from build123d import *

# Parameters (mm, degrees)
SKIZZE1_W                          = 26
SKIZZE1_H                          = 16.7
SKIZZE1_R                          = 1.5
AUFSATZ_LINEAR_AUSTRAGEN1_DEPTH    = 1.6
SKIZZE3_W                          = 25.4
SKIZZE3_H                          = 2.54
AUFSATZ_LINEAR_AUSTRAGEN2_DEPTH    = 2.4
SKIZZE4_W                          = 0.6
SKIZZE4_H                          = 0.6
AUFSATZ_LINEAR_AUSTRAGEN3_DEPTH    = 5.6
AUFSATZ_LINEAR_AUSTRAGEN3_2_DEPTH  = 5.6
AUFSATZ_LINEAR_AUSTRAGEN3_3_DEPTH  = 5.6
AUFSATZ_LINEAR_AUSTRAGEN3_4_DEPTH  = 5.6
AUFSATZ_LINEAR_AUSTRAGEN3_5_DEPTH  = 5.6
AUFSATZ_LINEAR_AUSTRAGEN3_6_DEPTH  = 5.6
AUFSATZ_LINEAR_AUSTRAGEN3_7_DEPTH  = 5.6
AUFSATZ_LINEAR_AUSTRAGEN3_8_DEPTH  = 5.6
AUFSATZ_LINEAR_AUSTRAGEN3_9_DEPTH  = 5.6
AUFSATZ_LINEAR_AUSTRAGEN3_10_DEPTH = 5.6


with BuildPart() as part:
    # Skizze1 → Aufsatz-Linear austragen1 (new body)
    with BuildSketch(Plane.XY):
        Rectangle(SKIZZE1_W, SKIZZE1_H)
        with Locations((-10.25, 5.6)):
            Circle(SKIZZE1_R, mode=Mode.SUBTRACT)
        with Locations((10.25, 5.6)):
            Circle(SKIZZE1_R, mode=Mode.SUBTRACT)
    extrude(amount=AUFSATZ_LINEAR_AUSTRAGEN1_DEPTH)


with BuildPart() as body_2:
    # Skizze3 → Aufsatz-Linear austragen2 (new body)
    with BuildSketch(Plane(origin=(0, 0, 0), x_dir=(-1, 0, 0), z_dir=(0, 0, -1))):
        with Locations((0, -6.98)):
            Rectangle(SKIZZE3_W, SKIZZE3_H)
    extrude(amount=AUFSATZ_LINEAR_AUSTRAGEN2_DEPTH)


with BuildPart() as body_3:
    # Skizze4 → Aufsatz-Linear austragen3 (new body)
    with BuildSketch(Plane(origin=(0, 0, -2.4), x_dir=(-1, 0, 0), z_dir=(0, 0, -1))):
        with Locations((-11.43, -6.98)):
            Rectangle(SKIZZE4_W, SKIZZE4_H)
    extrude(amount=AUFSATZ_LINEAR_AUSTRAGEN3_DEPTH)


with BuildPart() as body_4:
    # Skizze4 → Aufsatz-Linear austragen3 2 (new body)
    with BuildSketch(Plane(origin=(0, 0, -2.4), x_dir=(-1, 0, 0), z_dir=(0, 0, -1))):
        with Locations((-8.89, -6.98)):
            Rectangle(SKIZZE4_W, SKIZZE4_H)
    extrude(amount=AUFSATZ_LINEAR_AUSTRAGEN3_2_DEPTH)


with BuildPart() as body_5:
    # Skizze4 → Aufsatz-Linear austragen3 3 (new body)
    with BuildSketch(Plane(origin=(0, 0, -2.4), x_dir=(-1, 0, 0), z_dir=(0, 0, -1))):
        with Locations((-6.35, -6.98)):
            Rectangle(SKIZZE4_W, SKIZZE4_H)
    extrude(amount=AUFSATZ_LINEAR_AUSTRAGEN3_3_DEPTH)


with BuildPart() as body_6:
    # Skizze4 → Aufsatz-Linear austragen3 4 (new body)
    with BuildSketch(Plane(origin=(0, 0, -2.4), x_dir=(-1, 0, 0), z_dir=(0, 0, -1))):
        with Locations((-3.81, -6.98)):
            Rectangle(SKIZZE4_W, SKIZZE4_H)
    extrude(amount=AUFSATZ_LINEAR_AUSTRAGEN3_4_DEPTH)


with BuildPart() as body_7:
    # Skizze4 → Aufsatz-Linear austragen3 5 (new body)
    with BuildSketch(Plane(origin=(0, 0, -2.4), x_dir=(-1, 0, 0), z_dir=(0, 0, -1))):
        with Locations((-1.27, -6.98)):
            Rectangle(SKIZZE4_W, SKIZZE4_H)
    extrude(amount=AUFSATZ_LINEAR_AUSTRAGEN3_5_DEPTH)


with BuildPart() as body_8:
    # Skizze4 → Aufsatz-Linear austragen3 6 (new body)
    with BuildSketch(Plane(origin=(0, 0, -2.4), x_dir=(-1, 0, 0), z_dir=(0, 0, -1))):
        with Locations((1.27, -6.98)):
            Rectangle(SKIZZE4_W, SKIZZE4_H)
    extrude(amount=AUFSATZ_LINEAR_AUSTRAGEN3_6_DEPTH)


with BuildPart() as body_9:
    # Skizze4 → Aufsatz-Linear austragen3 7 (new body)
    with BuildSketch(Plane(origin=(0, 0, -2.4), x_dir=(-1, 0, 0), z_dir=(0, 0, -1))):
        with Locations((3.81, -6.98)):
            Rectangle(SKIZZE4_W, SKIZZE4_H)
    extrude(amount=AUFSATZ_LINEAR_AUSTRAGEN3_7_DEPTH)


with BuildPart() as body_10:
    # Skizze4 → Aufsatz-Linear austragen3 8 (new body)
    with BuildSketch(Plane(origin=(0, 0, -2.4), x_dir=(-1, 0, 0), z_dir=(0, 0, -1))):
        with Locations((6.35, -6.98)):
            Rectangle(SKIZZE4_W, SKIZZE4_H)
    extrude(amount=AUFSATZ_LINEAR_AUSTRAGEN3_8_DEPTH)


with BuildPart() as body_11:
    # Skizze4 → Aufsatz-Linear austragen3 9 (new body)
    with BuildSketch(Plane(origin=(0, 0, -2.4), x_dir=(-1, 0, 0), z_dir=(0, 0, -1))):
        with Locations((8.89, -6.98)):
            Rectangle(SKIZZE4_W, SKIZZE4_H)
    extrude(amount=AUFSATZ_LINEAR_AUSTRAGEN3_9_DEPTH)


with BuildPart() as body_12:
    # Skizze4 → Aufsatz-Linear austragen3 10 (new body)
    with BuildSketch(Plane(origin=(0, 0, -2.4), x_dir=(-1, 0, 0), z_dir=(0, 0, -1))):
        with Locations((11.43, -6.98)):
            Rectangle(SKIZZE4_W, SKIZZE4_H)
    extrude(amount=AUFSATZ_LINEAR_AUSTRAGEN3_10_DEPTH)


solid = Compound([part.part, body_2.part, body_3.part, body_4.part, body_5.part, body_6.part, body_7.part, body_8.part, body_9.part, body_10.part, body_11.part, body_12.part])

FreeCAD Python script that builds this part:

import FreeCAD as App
import Part
import Sketcher
from FreeCAD import Vector

doc = App.newDocument("Part")
body = doc.addObject("PartDesign::Body", "Body")

# Sketch on XY plane
sketch1 = body.newObject("Sketcher::SketchObject", "Sketch")
sketch1.AttachmentSupport = (doc.getObject("XY_Plane"), [""])
sketch1.MapMode = "FlatFace"
sketch1.addGeometry(Part.LineSegment(Vector(-13, 8.3, 0), Vector(-13, -8.3, 0)), False)
sketch1.addGeometry(Part.LineSegment(Vector(-13, -8.3, 0), Vector(13, -8.3, 0)), False)
sketch1.addGeometry(Part.LineSegment(Vector(13, -8.3, 0), Vector(13, 8.3, 0)), False)
sketch1.addGeometry(Part.LineSegment(Vector(13, 8.3, 0), Vector(-13, 8.3, 0)), False)
sketch1.addGeometry(Part.Circle(Vector(-10.2, 5.6, 0), Vector(0, 0, 1), 1.5), False)
sketch1.addGeometry(Part.Circle(Vector(10.2, 5.6, 0), Vector(0, 0, 1), 1.5), False)
sketch1.addConstraint(Sketcher.Constraint("Coincident", 0, 2, 1, 1))
sketch1.addConstraint(Sketcher.Constraint("Coincident", 1, 2, 2, 1))
sketch1.addConstraint(Sketcher.Constraint("Coincident", 2, 2, 3, 1))
sketch1.addConstraint(Sketcher.Constraint("Coincident", 3, 2, 0, 1))
sketch1.addConstraint(Sketcher.Constraint("Vertical", 0))
sketch1.addConstraint(Sketcher.Constraint("Horizontal", 1))
sketch1.addConstraint(Sketcher.Constraint("Vertical", 2))
sketch1.addConstraint(Sketcher.Constraint("Horizontal", 3))
sketch1.addConstraint(Sketcher.Constraint("Equal", 4, 5))
sketch1.addConstraint(Sketcher.Constraint("Symmetric", 0, 2, 2, 2, -1, 1))
sketch1.addConstraint(Sketcher.Constraint("Symmetric", 4, 3, 5, 3, -2))
sketch1.addConstraint(Sketcher.Constraint("Diameter", 4, 3.0))
sketch1.addConstraint(Sketcher.Constraint("DistanceX", 1, 1, 1, 2, 26.0))
sketch1.addConstraint(Sketcher.Constraint("DistanceY", 0, 2, 0, 1, 16.7))
sketch1.addConstraint(Sketcher.Constraint("DistanceY", -1, 1, 4, 3, 5.6))
sketch1.addConstraint(Sketcher.Constraint("DistanceX", 4, 3, 5, 3, 20.5))
pad1 = body.newObject("PartDesign::Pad", "Pad")
pad1.Profile = sketch1
pad1.Length = 1.6
body2 = doc.addObject("PartDesign::Body", "Body001")

# Sketch on XY plane
sketch2 = body2.newObject("Sketcher::SketchObject", "Sketch001")
sketch2.AttachmentSupport = (doc.getObject("XY_Plane001"), [""])
sketch2.MapMode = "FlatFace"
sketch2.addGeometry(Part.LineSegment(Vector(12.7, -5.7, 0), Vector(12.7, -8.2, 0)), False)
sketch2.addGeometry(Part.LineSegment(Vector(12.7, -8.2, 0), Vector(-12.7, -8.2, 0)), False)
sketch2.addGeometry(Part.LineSegment(Vector(-12.7, -8.2, 0), Vector(-12.7, -5.7, 0)), False)
sketch2.addGeometry(Part.LineSegment(Vector(-12.7, -5.7, 0), Vector(12.7, -5.7, 0)), False)
sketch2.addConstraint(Sketcher.Constraint("Coincident", 0, 2, 1, 1))
sketch2.addConstraint(Sketcher.Constraint("Coincident", 1, 2, 2, 1))
sketch2.addConstraint(Sketcher.Constraint("Coincident", 2, 2, 3, 1))
sketch2.addConstraint(Sketcher.Constraint("Coincident", 3, 2, 0, 1))
sketch2.addConstraint(Sketcher.Constraint("Vertical", 0))
sketch2.addConstraint(Sketcher.Constraint("Horizontal", 1))
sketch2.addConstraint(Sketcher.Constraint("Vertical", 2))
sketch2.addConstraint(Sketcher.Constraint("Horizontal", 3))
sketch2.addConstraint(Sketcher.Constraint("DistanceX", 1, 2, 1, 1, 25.4))
sketch2.addConstraint(Sketcher.Constraint("DistanceY", 0, 2, 0, 1, 2.54))
sketch2.addConstraint(Sketcher.Constraint("DistanceX", -1, 1, 0, 2, 12.7))
sketch2.addConstraint(Sketcher.Constraint("DistanceY", 0, 2, -1, 1, 8.25))
pad2 = body2.newObject("PartDesign::Pad", "Pad001")
pad2.Profile = sketch2
pad2.Length = 2.4
pad2.Reversed = True
body3 = doc.addObject("PartDesign::Body", "Body002")

# Sketch on XY plane
sketch3 = body3.newObject("Sketcher::SketchObject", "Sketch002")
sketch3.AttachmentSupport = (doc.getObject("XY_Plane002"), [""])
sketch3.MapMode = "FlatFace"
sketch3.AttachmentOffset = App.Placement(Vector(0, 0, -2.4), App.Rotation())
sketch3.addGeometry(Part.LineSegment(Vector(11.7, -6.7, 0), Vector(11.7, -7.3, 0)), False)
sketch3.addGeometry(Part.LineSegment(Vector(11.7, -7.3, 0), Vector(11.1, -7.3, 0)), False)
sketch3.addGeometry(Part.LineSegment(Vector(11.1, -7.3, 0), Vector(11.1, -6.7, 0)), False)
sketch3.addGeometry(Part.LineSegment(Vector(11.1, -6.7, 0), Vector(11.7, -6.7, 0)), False)
sketch3.addConstraint(Sketcher.Constraint("Coincident", 0, 2, 1, 1))
sketch3.addConstraint(Sketcher.Constraint("Coincident", 1, 2, 2, 1))
sketch3.addConstraint(Sketcher.Constraint("Coincident", 2, 2, 3, 1))
sketch3.addConstraint(Sketcher.Constraint("Coincident", 3, 2, 0, 1))
sketch3.addConstraint(Sketcher.Constraint("Vertical", 0))
sketch3.addConstraint(Sketcher.Constraint("Horizontal", 1))
sketch3.addConstraint(Sketcher.Constraint("Vertical", 2))
sketch3.addConstraint(Sketcher.Constraint("Horizontal", 3))
sketch3.addConstraint(Sketcher.Constraint("Equal", 3, 0))
sketch3.addConstraint(Sketcher.Constraint("DistanceX", 1, 2, 1, 1, 0.6))
sketch3.addConstraint(Sketcher.Constraint("DistanceX", -1, 1, 0, 2, 11.73))
sketch3.addConstraint(Sketcher.Constraint("DistanceY", 0, 2, -1, 1, 7.28))
pad3 = body3.newObject("PartDesign::Pad", "Pad002")
pad3.Profile = sketch3
pad3.Length = 5.6
pad3.Reversed = True
body4 = doc.addObject("PartDesign::Body", "Body003")

# Sketch on XY plane
sketch4 = body4.newObject("Sketcher::SketchObject", "Sketch003")
sketch4.AttachmentSupport = (doc.getObject("XY_Plane003"), [""])
sketch4.MapMode = "FlatFace"
sketch4.AttachmentOffset = App.Placement(Vector(0, 0, -2.4), App.Rotation())
sketch4.addGeometry(Part.LineSegment(Vector(9.2, -6.7, 0), Vector(9.2, -7.3, 0)), False)
sketch4.addGeometry(Part.LineSegment(Vector(9.2, -7.3, 0), Vector(8.6, -7.3, 0)), False)
sketch4.addGeometry(Part.LineSegment(Vector(8.6, -7.3, 0), Vector(8.6, -6.7, 0)), False)
sketch4.addGeometry(Part.LineSegment(Vector(8.6, -6.7, 0), Vector(9.2, -6.7, 0)), False)
sketch4.addConstraint(Sketcher.Constraint("Coincident", 0, 2, 1, 1))
sketch4.addConstraint(Sketcher.Constraint("Coincident", 1, 2, 2, 1))
sketch4.addConstraint(Sketcher.Constraint("Coincident", 2, 2, 3, 1))
sketch4.addConstraint(Sketcher.Constraint("Coincident", 3, 2, 0, 1))
sketch4.addConstraint(Sketcher.Constraint("Vertical", 0))
sketch4.addConstraint(Sketcher.Constraint("Horizontal", 1))
sketch4.addConstraint(Sketcher.Constraint("Vertical", 2))
sketch4.addConstraint(Sketcher.Constraint("Horizontal", 3))
sketch4.addConstraint(Sketcher.Constraint("Equal", 3, 0))
sketch4.addConstraint(Sketcher.Constraint("DistanceX", 1, 2, 1, 1, 0.6))
sketch4.addConstraint(Sketcher.Constraint("DistanceX", -1, 1, 0, 2, 9.19))
sketch4.addConstraint(Sketcher.Constraint("DistanceY", 0, 2, -1, 1, 7.28))
pad4 = body4.newObject("PartDesign::Pad", "Pad003")
pad4.Profile = sketch4
pad4.Length = 5.6
pad4.Reversed = True
body5 = doc.addObject("PartDesign::Body", "Body004")

# Sketch on XY plane
sketch5 = body5.newObject("Sketcher::SketchObject", "Sketch004")
sketch5.AttachmentSupport = (doc.getObject("XY_Plane004"), [""])
sketch5.MapMode = "FlatFace"
sketch5.AttachmentOffset = App.Placement(Vector(0, 0, -2.4), App.Rotation())
sketch5.addGeometry(Part.LineSegment(Vector(6.7, -6.7, 0), Vector(6.7, -7.3, 0)), False)
sketch5.addGeometry(Part.LineSegment(Vector(6.7, -7.3, 0), Vector(6, -7.3, 0)), False)
sketch5.addGeometry(Part.LineSegment(Vector(6, -7.3, 0), Vector(6, -6.7, 0)), False)
sketch5.addGeometry(Part.LineSegment(Vector(6, -6.7, 0), Vector(6.7, -6.7, 0)), False)
sketch5.addConstraint(Sketcher.Constraint("Coincident", 0, 2, 1, 1))
sketch5.addConstraint(Sketcher.Constraint("Coincident", 1, 2, 2, 1))
sketch5.addConstraint(Sketcher.Constraint("Coincident", 2, 2, 3, 1))
sketch5.addConstraint(Sketcher.Constraint("Coincident", 3, 2, 0, 1))
sketch5.addConstraint(Sketcher.Constraint("Vertical", 0))
sketch5.addConstraint(Sketcher.Constraint("Horizontal", 1))
sketch5.addConstraint(Sketcher.Constraint("Vertical", 2))
sketch5.addConstraint(Sketcher.Constraint("Horizontal", 3))
sketch5.addConstraint(Sketcher.Constraint("Equal", 3, 0))
sketch5.addConstraint(Sketcher.Constraint("DistanceX", 1, 2, 1, 1, 0.6))
sketch5.addConstraint(Sketcher.Constraint("DistanceX", -1, 1, 0, 2, 6.65))
sketch5.addConstraint(Sketcher.Constraint("DistanceY", 0, 2, -1, 1, 7.28))
pad5 = body5.newObject("PartDesign::Pad", "Pad004")
pad5.Profile = sketch5
pad5.Length = 5.6
pad5.Reversed = True
body6 = doc.addObject("PartDesign::Body", "Body005")

# Sketch on XY plane
sketch6 = body6.newObject("Sketcher::SketchObject", "Sketch005")
sketch6.AttachmentSupport = (doc.getObject("XY_Plane005"), [""])
sketch6.MapMode = "FlatFace"
sketch6.AttachmentOffset = App.Placement(Vector(0, 0, -2.4), App.Rotation())
sketch6.addGeometry(Part.LineSegment(Vector(4.1, -6.7, 0), Vector(4.1, -7.3, 0)), False)
sketch6.addGeometry(Part.LineSegment(Vector(4.1, -7.3, 0), Vector(3.5, -7.3, 0)), False)
sketch6.addGeometry(Part.LineSegment(Vector(3.5, -7.3, 0), Vector(3.5, -6.7, 0)), False)
sketch6.addGeometry(Part.LineSegment(Vector(3.5, -6.7, 0), Vector(4.1, -6.7, 0)), False)
sketch6.addConstraint(Sketcher.Constraint("Coincident", 0, 2, 1, 1))
sketch6.addConstraint(Sketcher.Constraint("Coincident", 1, 2, 2, 1))
sketch6.addConstraint(Sketcher.Constraint("Coincident", 2, 2, 3, 1))
sketch6.addConstraint(Sketcher.Constraint("Coincident", 3, 2, 0, 1))
sketch6.addConstraint(Sketcher.Constraint("Vertical", 0))
sketch6.addConstraint(Sketcher.Constraint("Horizontal", 1))
sketch6.addConstraint(Sketcher.Constraint("Vertical", 2))
sketch6.addConstraint(Sketcher.Constraint("Horizontal", 3))
sketch6.addConstraint(Sketcher.Constraint("Equal", 3, 0))
sketch6.addConstraint(Sketcher.Constraint("DistanceX", 1, 2, 1, 1, 0.6))
sketch6.addConstraint(Sketcher.Constraint("DistanceX", -1, 1, 0, 2, 4.11))
sketch6.addConstraint(Sketcher.Constraint("DistanceY", 0, 2, -1, 1, 7.28))
pad6 = body6.newObject("PartDesign::Pad", "Pad005")
pad6.Profile = sketch6
pad6.Length = 5.6
pad6.Reversed = True
body7 = doc.addObject("PartDesign::Body", "Body006")

# Sketch on XY plane
sketch7 = body7.newObject("Sketcher::SketchObject", "Sketch006")
sketch7.AttachmentSupport = (doc.getObject("XY_Plane006"), [""])
sketch7.MapMode = "FlatFace"
sketch7.AttachmentOffset = App.Placement(Vector(0, 0, -2.4), App.Rotation())
sketch7.addGeometry(Part.LineSegment(Vector(1.6, -6.7, 0), Vector(1.6, -7.3, 0)), False)
sketch7.addGeometry(Part.LineSegment(Vector(1.6, -7.3, 0), Vector(1, -7.3, 0)), False)
sketch7.addGeometry(Part.LineSegment(Vector(1, -7.3, 0), Vector(1, -6.7, 0)), False)
sketch7.addGeometry(Part.LineSegment(Vector(1, -6.7, 0), Vector(1.6, -6.7, 0)), False)
sketch7.addConstraint(Sketcher.Constraint("Coincident", 0, 2, 1, 1))
sketch7.addConstraint(Sketcher.Constraint("Coincident", 1, 2, 2, 1))
sketch7.addConstraint(Sketcher.Constraint("Coincident", 2, 2, 3, 1))
sketch7.addConstraint(Sketcher.Constraint("Coincident", 3, 2, 0, 1))
sketch7.addConstraint(Sketcher.Constraint("Vertical", 0))
sketch7.addConstraint(Sketcher.Constraint("Horizontal", 1))
sketch7.addConstraint(Sketcher.Constraint("Vertical", 2))
sketch7.addConstraint(Sketcher.Constraint("Horizontal", 3))
sketch7.addConstraint(Sketcher.Constraint("Equal", 3, 0))
sketch7.addConstraint(Sketcher.Constraint("DistanceX", 1, 2, 1, 1, 0.6))
sketch7.addConstraint(Sketcher.Constraint("DistanceX", -1, 1, 0, 2, 1.57))
sketch7.addConstraint(Sketcher.Constraint("DistanceY", 0, 2, -1, 1, 7.28))
pad7 = body7.newObject("PartDesign::Pad", "Pad006")
pad7.Profile = sketch7
pad7.Length = 5.6
pad7.Reversed = True
body8 = doc.addObject("PartDesign::Body", "Body007")

# Sketch on XY plane
sketch8 = body8.newObject("Sketcher::SketchObject", "Sketch007")
sketch8.AttachmentSupport = (doc.getObject("XY_Plane007"), [""])
sketch8.MapMode = "FlatFace"
sketch8.AttachmentOffset = App.Placement(Vector(0, 0, -2.4), App.Rotation())
sketch8.addGeometry(Part.LineSegment(Vector(-1, -6.7, 0), Vector(-1, -7.3, 0)), False)
sketch8.addGeometry(Part.LineSegment(Vector(-1, -7.3, 0), Vector(-1.6, -7.3, 0)), False)
sketch8.addGeometry(Part.LineSegment(Vector(-1.6, -7.3, 0), Vector(-1.6, -6.7, 0)), False)
sketch8.addGeometry(Part.LineSegment(Vector(-1.6, -6.7, 0), Vector(-1, -6.7, 0)), False)
sketch8.addConstraint(Sketcher.Constraint("Coincident", 0, 2, 1, 1))
sketch8.addConstraint(Sketcher.Constraint("Coincident", 1, 2, 2, 1))
sketch8.addConstraint(Sketcher.Constraint("Coincident", 2, 2, 3, 1))
sketch8.addConstraint(Sketcher.Constraint("Coincident", 3, 2, 0, 1))
sketch8.addConstraint(Sketcher.Constraint("Vertical", 0))
sketch8.addConstraint(Sketcher.Constraint("Horizontal", 1))
sketch8.addConstraint(Sketcher.Constraint("Vertical", 2))
sketch8.addConstraint(Sketcher.Constraint("Horizontal", 3))
sketch8.addConstraint(Sketcher.Constraint("Equal", 3, 0))
sketch8.addConstraint(Sketcher.Constraint("DistanceX", 1, 2, 1, 1, 0.6))
sketch8.addConstraint(Sketcher.Constraint("DistanceX", 0, 2, -1, 1, 0.97))
sketch8.addConstraint(Sketcher.Constraint("DistanceY", 0, 2, -1, 1, 7.28))
pad8 = body8.newObject("PartDesign::Pad", "Pad007")
pad8.Profile = sketch8
pad8.Length = 5.6
pad8.Reversed = True
body9 = doc.addObject("PartDesign::Body", "Body008")

# Sketch on XY plane
sketch9 = body9.newObject("Sketcher::SketchObject", "Sketch008")
sketch9.AttachmentSupport = (doc.getObject("XY_Plane008"), [""])
sketch9.MapMode = "FlatFace"
sketch9.AttachmentOffset = App.Placement(Vector(0, 0, -2.4), App.Rotation())
sketch9.addGeometry(Part.LineSegment(Vector(-3.5, -6.7, 0), Vector(-3.5, -7.3, 0)), False)
sketch9.addGeometry(Part.LineSegment(Vector(-3.5, -7.3, 0), Vector(-4.1, -7.3, 0)), False)
sketch9.addGeometry(Part.LineSegment(Vector(-4.1, -7.3, 0), Vector(-4.1, -6.7, 0)), False)
sketch9.addGeometry(Part.LineSegment(Vector(-4.1, -6.7, 0), Vector(-3.5, -6.7, 0)), False)
sketch9.addConstraint(Sketcher.Constraint("Coincident", 0, 2, 1, 1))
sketch9.addConstraint(Sketcher.Constraint("Coincident", 1, 2, 2, 1))
sketch9.addConstraint(Sketcher.Constraint("Coincident", 2, 2, 3, 1))
sketch9.addConstraint(Sketcher.Constraint("Coincident", 3, 2, 0, 1))
sketch9.addConstraint(Sketcher.Constraint("Vertical", 0))
sketch9.addConstraint(Sketcher.Constraint("Horizontal", 1))
sketch9.addConstraint(Sketcher.Constraint("Vertical", 2))
sketch9.addConstraint(Sketcher.Constraint("Horizontal", 3))
sketch9.addConstraint(Sketcher.Constraint("Equal", 3, 0))
sketch9.addConstraint(Sketcher.Constraint("DistanceX", 1, 2, 1, 1, 0.6))
sketch9.addConstraint(Sketcher.Constraint("DistanceX", 0, 2, -1, 1, 3.51))
sketch9.addConstraint(Sketcher.Constraint("DistanceY", 0, 2, -1, 1, 7.28))
pad9 = body9.newObject("PartDesign::Pad", "Pad008")
pad9.Profile = sketch9
pad9.Length = 5.6
pad9.Reversed = True
body10 = doc.addObject("PartDesign::Body", "Body009")

# Sketch on XY plane
sketch10 = body10.newObject("Sketcher::SketchObject", "Sketch009")
sketch10.AttachmentSupport = (doc.getObject("XY_Plane009"), [""])
sketch10.MapMode = "FlatFace"
sketch10.AttachmentOffset = App.Placement(Vector(0, 0, -2.4), App.Rotation())
sketch10.addGeometry(Part.LineSegment(Vector(-6, -6.7, 0), Vector(-6, -7.3, 0)), False)
sketch10.addGeometry(Part.LineSegment(Vector(-6, -7.3, 0), Vector(-6.7, -7.3, 0)), False)
sketch10.addGeometry(Part.LineSegment(Vector(-6.7, -7.3, 0), Vector(-6.7, -6.7, 0)), False)
sketch10.addGeometry(Part.LineSegment(Vector(-6.7, -6.7, 0), Vector(-6, -6.7, 0)), False)
sketch10.addConstraint(Sketcher.Constraint("Coincident", 0, 2, 1, 1))
sketch10.addConstraint(Sketcher.Constraint("Coincident", 1, 2, 2, 1))
sketch10.addConstraint(Sketcher.Constraint("Coincident", 2, 2, 3, 1))
sketch10.addConstraint(Sketcher.Constraint("Coincident", 3, 2, 0, 1))
sketch10.addConstraint(Sketcher.Constraint("Vertical", 0))
sketch10.addConstraint(Sketcher.Constraint("Horizontal", 1))
sketch10.addConstraint(Sketcher.Constraint("Vertical", 2))
sketch10.addConstraint(Sketcher.Constraint("Horizontal", 3))
sketch10.addConstraint(Sketcher.Constraint("Equal", 3, 0))
sketch10.addConstraint(Sketcher.Constraint("DistanceX", 1, 2, 1, 1, 0.6))
sketch10.addConstraint(Sketcher.Constraint("DistanceX", 0, 2, -1, 1, 6.05))
sketch10.addConstraint(Sketcher.Constraint("DistanceY", 0, 2, -1, 1, 7.28))
pad10 = body10.newObject("PartDesign::Pad", "Pad009")
pad10.Profile = sketch10
pad10.Length = 5.6
pad10.Reversed = True
body11 = doc.addObject("PartDesign::Body", "Body010")

# Sketch on XY plane
sketch11 = body11.newObject("Sketcher::SketchObject", "Sketch010")
sketch11.AttachmentSupport = (doc.getObject("XY_Plane010"), [""])
sketch11.MapMode = "FlatFace"
sketch11.AttachmentOffset = App.Placement(Vector(0, 0, -2.4), App.Rotation())
sketch11.addGeometry(Part.LineSegment(Vector(-8.6, -6.7, 0), Vector(-8.6, -7.3, 0)), False)
sketch11.addGeometry(Part.LineSegment(Vector(-8.6, -7.3, 0), Vector(-9.2, -7.3, 0)), False)
sketch11.addGeometry(Part.LineSegment(Vector(-9.2, -7.3, 0), Vector(-9.2, -6.7, 0)), False)
sketch11.addGeometry(Part.LineSegment(Vector(-9.2, -6.7, 0), Vector(-8.6, -6.7, 0)), False)
sketch11.addConstraint(Sketcher.Constraint("Coincident", 0, 2, 1, 1))
sketch11.addConstraint(Sketcher.Constraint("Coincident", 1, 2, 2, 1))
sketch11.addConstraint(Sketcher.Constraint("Coincident", 2, 2, 3, 1))
sketch11.addConstraint(Sketcher.Constraint("Coincident", 3, 2, 0, 1))
sketch11.addConstraint(Sketcher.Constraint("Vertical", 0))
sketch11.addConstraint(Sketcher.Constraint("Horizontal", 1))
sketch11.addConstraint(Sketcher.Constraint("Vertical", 2))
sketch11.addConstraint(Sketcher.Constraint("Horizontal", 3))
sketch11.addConstraint(Sketcher.Constraint("Equal", 3, 0))
sketch11.addConstraint(Sketcher.Constraint("DistanceX", 1, 2, 1, 1, 0.6))
sketch11.addConstraint(Sketcher.Constraint("DistanceX", 0, 2, -1, 1, 8.59))
sketch11.addConstraint(Sketcher.Constraint("DistanceY", 0, 2, -1, 1, 7.28))
pad11 = body11.newObject("PartDesign::Pad", "Pad010")
pad11.Profile = sketch11
pad11.Length = 5.6
pad11.Reversed = True
body12 = doc.addObject("PartDesign::Body", "Body011")

# Sketch on XY plane
sketch12 = body12.newObject("Sketcher::SketchObject", "Sketch011")
sketch12.AttachmentSupport = (doc.getObject("XY_Plane011"), [""])
sketch12.MapMode = "FlatFace"
sketch12.AttachmentOffset = App.Placement(Vector(0, 0, -2.4), App.Rotation())
sketch12.addGeometry(Part.LineSegment(Vector(-11.1, -6.7, 0), Vector(-11.1, -7.3, 0)), False)
sketch12.addGeometry(Part.LineSegment(Vector(-11.1, -7.3, 0), Vector(-11.7, -7.3, 0)), False)
sketch12.addGeometry(Part.LineSegment(Vector(-11.7, -7.3, 0), Vector(-11.7, -6.7, 0)), False)
sketch12.addGeometry(Part.LineSegment(Vector(-11.7, -6.7, 0), Vector(-11.1, -6.7, 0)), False)
sketch12.addConstraint(Sketcher.Constraint("Coincident", 0, 2, 1, 1))
sketch12.addConstraint(Sketcher.Constraint("Coincident", 1, 2, 2, 1))
sketch12.addConstraint(Sketcher.Constraint("Coincident", 2, 2, 3, 1))
sketch12.addConstraint(Sketcher.Constraint("Coincident", 3, 2, 0, 1))
sketch12.addConstraint(Sketcher.Constraint("Vertical", 0))
sketch12.addConstraint(Sketcher.Constraint("Horizontal", 1))
sketch12.addConstraint(Sketcher.Constraint("Vertical", 2))
sketch12.addConstraint(Sketcher.Constraint("Horizontal", 3))
sketch12.addConstraint(Sketcher.Constraint("Equal", 3, 0))
sketch12.addConstraint(Sketcher.Constraint("DistanceX", 1, 2, 1, 1, 0.6))
sketch12.addConstraint(Sketcher.Constraint("DistanceX", 0, 2, -1, 1, 11.13))
sketch12.addConstraint(Sketcher.Constraint("DistanceY", 0, 2, -1, 1, 7.28))
pad12 = body12.newObject("PartDesign::Pad", "Pad011")
pad12.Profile = sketch12
pad12.Length = 5.6
pad12.Reversed = True

doc.recompute()
